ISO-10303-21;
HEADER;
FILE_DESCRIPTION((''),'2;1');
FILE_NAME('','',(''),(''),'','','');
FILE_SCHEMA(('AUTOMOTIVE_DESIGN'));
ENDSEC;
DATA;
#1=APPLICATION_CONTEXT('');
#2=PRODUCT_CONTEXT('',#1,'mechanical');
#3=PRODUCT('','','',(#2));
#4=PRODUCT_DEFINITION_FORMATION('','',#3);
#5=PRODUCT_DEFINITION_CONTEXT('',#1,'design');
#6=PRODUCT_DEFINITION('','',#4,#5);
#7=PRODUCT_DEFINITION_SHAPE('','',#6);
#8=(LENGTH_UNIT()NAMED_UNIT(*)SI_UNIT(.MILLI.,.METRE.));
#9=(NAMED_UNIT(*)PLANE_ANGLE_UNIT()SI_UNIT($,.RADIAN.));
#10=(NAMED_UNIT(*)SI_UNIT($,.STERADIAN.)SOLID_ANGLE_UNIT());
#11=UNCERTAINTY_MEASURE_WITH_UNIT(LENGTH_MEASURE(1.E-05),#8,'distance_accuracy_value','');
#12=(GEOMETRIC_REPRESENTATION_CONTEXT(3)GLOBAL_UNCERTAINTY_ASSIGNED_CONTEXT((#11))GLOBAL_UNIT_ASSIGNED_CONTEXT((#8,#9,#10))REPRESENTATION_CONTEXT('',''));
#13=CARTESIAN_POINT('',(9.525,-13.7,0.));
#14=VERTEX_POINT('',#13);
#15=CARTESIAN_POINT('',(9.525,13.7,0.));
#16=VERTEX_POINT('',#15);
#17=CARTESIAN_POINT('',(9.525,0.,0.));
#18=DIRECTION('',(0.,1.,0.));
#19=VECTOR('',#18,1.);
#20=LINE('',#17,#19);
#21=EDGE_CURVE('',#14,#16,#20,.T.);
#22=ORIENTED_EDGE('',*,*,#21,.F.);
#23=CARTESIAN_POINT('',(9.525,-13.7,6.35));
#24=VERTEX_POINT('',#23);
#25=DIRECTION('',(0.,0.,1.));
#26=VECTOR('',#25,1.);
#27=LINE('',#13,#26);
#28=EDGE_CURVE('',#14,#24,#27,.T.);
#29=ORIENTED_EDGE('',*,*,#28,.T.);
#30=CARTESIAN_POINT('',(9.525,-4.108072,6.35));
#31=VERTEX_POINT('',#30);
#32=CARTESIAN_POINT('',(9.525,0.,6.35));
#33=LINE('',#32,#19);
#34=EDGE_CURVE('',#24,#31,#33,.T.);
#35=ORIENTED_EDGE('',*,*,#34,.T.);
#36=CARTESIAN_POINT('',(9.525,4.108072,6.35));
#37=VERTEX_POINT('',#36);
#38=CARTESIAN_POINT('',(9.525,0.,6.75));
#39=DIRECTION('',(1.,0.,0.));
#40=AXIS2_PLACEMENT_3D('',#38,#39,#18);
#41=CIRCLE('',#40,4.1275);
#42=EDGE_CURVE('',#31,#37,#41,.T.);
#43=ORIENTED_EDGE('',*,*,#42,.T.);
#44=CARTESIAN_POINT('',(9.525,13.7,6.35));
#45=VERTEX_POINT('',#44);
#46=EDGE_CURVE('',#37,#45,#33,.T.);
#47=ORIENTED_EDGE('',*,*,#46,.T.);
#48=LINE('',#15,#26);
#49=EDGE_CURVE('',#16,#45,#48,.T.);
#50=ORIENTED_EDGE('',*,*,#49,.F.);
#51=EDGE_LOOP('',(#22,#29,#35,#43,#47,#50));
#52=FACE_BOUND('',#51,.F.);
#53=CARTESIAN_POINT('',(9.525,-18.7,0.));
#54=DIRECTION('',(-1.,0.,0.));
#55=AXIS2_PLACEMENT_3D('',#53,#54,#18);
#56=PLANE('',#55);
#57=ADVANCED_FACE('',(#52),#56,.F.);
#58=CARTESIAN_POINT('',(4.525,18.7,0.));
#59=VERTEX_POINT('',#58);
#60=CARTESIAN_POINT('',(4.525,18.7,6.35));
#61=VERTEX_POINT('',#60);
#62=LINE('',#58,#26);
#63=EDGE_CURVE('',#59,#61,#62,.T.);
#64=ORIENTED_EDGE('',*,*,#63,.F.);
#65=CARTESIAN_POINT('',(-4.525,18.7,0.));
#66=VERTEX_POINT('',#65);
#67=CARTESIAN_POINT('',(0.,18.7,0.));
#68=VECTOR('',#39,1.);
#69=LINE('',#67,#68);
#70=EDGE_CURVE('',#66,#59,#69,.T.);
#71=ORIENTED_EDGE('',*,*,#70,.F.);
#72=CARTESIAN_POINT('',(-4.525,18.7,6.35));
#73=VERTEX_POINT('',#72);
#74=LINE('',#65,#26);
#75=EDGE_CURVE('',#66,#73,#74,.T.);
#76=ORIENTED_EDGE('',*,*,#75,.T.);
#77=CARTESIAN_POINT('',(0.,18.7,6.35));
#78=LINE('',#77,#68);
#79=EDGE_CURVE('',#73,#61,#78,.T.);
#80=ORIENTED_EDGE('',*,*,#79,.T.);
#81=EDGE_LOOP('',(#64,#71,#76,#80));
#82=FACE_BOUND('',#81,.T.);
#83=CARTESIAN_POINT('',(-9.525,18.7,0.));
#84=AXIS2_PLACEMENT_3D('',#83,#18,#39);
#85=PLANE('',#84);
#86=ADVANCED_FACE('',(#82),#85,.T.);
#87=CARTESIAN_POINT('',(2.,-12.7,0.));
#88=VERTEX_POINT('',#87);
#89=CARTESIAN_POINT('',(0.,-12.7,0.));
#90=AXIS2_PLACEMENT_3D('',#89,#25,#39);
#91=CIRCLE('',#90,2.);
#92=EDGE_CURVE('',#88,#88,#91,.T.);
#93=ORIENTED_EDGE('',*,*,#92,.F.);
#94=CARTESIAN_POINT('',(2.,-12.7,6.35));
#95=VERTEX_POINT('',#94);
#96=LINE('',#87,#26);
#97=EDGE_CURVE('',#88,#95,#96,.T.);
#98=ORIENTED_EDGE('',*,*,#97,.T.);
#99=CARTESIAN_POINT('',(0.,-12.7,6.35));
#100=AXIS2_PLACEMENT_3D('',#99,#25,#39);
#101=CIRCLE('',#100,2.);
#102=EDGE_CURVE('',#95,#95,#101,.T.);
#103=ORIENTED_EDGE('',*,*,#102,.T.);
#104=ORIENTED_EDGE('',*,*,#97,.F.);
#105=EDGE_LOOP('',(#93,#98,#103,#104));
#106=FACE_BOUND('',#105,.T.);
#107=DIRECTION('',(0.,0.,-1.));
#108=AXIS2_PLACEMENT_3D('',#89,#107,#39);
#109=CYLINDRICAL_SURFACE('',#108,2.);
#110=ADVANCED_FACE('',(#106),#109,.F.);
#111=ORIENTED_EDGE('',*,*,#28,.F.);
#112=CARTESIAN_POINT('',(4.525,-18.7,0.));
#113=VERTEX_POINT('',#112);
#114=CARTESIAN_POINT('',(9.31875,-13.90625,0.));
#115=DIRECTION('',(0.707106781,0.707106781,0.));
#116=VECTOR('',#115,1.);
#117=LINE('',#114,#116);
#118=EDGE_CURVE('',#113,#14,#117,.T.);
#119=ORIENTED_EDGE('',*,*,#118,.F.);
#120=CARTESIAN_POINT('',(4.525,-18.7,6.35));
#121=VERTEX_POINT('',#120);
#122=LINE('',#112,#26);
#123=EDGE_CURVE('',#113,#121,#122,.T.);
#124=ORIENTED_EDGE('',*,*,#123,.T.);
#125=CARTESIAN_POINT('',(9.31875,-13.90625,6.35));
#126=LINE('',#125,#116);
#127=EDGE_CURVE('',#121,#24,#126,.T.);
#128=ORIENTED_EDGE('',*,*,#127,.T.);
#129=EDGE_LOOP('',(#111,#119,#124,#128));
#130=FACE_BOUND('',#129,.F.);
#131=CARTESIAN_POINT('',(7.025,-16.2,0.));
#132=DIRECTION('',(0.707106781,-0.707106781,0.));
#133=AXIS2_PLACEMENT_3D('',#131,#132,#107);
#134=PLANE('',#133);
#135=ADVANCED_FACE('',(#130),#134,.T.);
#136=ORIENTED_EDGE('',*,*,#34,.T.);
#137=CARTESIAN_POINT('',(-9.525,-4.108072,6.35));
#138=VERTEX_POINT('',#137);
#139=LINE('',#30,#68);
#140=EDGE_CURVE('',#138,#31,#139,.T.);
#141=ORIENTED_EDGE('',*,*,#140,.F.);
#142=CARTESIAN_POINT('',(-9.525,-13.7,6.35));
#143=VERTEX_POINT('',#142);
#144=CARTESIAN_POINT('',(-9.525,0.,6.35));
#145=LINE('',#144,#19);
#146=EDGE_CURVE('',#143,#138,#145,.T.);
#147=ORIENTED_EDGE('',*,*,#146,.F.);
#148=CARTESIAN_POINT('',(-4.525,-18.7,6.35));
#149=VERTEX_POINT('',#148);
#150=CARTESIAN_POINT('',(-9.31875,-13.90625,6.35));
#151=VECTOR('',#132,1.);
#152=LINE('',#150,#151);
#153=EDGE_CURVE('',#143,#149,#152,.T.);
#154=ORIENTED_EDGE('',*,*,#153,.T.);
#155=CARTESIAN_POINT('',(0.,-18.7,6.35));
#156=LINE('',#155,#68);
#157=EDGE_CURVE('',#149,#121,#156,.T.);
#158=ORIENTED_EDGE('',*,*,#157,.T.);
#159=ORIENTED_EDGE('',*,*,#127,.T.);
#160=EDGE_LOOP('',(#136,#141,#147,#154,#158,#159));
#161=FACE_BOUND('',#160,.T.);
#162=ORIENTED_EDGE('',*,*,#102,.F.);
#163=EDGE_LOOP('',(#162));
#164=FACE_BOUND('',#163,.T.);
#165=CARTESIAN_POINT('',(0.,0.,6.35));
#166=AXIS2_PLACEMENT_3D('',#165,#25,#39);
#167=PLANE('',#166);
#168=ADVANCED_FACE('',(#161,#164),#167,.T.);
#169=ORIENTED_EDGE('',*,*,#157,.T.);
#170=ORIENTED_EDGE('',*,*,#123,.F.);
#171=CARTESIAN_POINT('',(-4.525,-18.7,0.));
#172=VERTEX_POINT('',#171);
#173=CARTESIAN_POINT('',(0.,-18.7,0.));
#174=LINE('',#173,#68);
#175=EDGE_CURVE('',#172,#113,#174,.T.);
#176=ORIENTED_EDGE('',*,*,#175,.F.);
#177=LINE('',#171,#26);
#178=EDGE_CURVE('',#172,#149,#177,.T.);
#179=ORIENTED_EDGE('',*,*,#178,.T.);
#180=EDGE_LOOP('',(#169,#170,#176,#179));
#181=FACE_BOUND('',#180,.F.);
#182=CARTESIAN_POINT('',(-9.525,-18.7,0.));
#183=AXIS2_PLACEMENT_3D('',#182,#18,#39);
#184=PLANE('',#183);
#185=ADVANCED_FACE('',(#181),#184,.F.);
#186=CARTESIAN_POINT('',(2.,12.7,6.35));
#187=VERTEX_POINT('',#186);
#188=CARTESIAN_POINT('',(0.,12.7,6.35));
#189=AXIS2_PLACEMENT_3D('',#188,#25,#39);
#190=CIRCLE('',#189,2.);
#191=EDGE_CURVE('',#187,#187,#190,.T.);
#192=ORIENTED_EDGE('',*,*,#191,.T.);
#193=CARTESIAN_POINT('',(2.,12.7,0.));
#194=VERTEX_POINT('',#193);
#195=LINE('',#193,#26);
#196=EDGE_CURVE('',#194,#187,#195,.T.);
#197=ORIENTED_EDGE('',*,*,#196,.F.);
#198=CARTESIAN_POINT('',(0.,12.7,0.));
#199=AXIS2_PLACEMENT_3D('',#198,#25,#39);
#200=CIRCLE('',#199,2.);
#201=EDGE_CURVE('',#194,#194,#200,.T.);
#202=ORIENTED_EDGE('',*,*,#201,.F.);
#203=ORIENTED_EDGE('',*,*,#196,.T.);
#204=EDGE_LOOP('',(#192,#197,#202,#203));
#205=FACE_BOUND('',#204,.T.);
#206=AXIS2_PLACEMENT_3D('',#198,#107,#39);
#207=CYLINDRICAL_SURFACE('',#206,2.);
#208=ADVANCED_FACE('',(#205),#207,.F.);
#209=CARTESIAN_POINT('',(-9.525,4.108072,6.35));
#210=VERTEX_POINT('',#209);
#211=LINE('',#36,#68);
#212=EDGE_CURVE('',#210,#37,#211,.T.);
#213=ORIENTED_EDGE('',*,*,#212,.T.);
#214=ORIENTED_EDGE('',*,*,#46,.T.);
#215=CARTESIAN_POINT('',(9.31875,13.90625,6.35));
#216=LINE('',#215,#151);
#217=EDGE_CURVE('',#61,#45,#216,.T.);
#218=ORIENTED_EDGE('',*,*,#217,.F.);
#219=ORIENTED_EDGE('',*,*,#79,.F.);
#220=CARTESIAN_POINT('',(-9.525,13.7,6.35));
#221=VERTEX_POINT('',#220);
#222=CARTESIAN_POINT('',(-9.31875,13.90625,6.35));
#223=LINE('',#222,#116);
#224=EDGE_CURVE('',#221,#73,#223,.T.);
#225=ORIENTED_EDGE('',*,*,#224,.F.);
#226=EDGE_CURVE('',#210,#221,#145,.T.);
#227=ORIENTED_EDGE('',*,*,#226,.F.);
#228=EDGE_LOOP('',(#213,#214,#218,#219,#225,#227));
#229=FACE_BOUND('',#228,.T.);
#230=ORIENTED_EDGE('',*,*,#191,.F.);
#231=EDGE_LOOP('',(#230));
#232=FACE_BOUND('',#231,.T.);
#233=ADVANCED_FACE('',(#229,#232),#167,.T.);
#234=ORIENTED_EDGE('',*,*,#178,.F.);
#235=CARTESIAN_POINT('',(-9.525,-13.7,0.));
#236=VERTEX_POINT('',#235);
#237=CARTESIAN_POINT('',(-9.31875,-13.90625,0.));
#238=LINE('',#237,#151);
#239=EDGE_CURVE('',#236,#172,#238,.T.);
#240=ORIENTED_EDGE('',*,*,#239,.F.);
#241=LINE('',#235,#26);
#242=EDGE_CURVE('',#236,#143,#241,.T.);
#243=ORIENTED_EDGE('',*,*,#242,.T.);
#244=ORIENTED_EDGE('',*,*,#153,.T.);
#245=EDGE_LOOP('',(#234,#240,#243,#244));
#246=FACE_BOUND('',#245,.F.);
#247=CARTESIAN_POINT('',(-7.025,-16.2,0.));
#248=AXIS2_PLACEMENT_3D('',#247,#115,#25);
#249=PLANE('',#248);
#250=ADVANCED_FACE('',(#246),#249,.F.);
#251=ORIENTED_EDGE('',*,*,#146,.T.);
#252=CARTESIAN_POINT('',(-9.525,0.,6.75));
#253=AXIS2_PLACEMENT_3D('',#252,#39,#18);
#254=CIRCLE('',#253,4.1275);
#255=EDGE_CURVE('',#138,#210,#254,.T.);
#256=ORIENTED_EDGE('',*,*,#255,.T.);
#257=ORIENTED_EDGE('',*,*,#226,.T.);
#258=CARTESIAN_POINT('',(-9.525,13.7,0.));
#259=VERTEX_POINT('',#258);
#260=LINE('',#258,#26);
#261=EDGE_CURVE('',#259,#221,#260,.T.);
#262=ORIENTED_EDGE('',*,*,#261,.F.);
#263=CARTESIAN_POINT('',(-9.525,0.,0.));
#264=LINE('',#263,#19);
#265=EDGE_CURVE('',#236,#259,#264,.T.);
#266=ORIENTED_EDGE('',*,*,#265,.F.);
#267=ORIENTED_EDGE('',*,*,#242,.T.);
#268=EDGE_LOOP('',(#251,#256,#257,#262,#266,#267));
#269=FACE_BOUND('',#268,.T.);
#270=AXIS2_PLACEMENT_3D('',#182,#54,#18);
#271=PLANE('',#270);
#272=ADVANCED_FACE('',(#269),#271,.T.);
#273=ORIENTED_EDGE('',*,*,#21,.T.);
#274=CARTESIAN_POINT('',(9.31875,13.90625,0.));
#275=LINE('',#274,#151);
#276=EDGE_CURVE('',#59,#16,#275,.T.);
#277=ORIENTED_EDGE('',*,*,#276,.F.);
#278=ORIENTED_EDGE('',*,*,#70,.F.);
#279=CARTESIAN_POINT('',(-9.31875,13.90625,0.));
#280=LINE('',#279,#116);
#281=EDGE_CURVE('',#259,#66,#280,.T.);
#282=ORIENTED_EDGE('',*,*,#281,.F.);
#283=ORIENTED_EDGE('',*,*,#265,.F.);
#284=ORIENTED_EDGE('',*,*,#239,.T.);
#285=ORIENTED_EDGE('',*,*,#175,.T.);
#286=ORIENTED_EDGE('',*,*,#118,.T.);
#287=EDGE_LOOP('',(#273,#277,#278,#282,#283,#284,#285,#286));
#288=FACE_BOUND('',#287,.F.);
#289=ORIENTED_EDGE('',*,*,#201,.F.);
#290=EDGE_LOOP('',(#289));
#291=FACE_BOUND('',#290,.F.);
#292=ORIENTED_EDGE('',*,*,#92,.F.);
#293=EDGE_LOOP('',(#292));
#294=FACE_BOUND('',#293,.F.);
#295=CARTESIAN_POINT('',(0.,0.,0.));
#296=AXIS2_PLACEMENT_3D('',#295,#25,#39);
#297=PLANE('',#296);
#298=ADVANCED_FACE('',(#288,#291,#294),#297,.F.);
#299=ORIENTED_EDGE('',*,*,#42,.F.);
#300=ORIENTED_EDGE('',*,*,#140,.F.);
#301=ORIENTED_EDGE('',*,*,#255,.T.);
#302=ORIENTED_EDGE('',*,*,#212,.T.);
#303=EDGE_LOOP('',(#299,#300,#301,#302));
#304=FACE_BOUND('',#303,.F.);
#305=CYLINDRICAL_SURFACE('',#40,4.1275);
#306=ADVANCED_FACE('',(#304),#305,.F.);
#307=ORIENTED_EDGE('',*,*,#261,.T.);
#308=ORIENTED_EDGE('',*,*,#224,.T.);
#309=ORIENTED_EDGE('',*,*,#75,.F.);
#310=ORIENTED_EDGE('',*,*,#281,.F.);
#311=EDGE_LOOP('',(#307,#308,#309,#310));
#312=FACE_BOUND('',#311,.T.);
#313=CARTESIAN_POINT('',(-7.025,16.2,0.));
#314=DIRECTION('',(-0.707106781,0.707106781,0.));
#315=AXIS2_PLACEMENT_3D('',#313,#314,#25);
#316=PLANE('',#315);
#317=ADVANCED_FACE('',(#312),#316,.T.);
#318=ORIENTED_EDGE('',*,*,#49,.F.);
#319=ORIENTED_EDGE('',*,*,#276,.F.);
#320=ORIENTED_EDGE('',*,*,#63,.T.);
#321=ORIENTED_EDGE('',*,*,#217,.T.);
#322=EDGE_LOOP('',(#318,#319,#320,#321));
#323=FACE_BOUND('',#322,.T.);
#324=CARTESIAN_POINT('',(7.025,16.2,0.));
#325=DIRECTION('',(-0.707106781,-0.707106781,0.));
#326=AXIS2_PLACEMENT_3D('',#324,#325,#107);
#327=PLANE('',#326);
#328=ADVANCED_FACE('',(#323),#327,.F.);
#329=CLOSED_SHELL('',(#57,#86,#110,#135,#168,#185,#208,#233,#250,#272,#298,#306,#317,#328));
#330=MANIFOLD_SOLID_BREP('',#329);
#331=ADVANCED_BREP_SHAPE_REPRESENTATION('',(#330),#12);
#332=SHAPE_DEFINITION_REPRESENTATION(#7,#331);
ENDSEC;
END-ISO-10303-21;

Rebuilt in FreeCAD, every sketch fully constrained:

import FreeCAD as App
import Part
import Sketcher
Q = App.Units.Quantity


def edges_at(feature, points):
    """Names of the edges that pass closest to the given points."""
    edges = feature.Shape.Edges
    near = lambda p: min(range(len(edges)), key=lambda i: edges[i].distToShape(Part.Vertex(*p))[0])
    return sorted({f"Edge{near(p) + 1}" for p in points})


def add_polygon(sketch, points):
    """Adds a closed chain of lines whose ends are joined by coincident constraints."""
    first, n = sketch.GeometryCount, len(points)
    for a, b in zip(points, points[1:] + points[:1]):
        sketch.addGeometry(Part.LineSegment(App.Vector(*a, 0), App.Vector(*b, 0)), False)
    for i in range(n):
        sketch.addConstraint(Sketcher.Constraint("Coincident", first + i, 2, first + (i + 1) % n, 1))

doc = App.newDocument("Part")
params = doc.addObject("Spreadsheet::Sheet", "Params")
for row, (alias, value) in enumerate([
    ("sketch1_diameter", "4 mm"),
    ("sketch1_height", "37.4 mm"),
    ("sketch1_width", "19.05 mm"),
    ("pad1_length", "6.35 mm"),
    ("pocket1_length", "100 mm"),
    ("chamfer_size", "5 mm"),
], start=1):
    params.set(f"A{row}", alias)
    params.set(f"B{row}", "=" + value)
    params.setAlias(f"B{row}", alias)

body = doc.addObject("PartDesign::Body", "Body")

sketch1 = body.newObject("Sketcher::SketchObject", "Sketch")
sketch1.AttachmentSupport = (doc.getObject("XY_Plane"), [""])
sketch1.MapMode = "FlatFace"
add_polygon(sketch1, [(-9.5, 18.7), (-9.5, -18.7), (9.5, -18.7), (9.5, 18.7)])
sketch1.addGeometry(Part.Circle(App.Vector(0, -12.7, 0), App.Vector(0, 0, 1), 2), False)
sketch1.addGeometry(Part.Circle(App.Vector(0, 12.7, 0), App.Vector(0, 0, 1), 2), False)
sketch1.addConstraint([
    Sketcher.Constraint("Vertical", 0),
    Sketcher.Constraint("Horizontal", 1),
    Sketcher.Constraint("Vertical", 2),
    Sketcher.Constraint("Horizontal", 3),
    Sketcher.Constraint("Equal", 4, 5),
    Sketcher.Constraint("Symmetric", 4, 3, 5, 3, -1, 1),
    Sketcher.Constraint("Symmetric", 0, 2, 2, 2, -1, 1),
    Sketcher.Constraint("PointOnObject", 4, 3, -2),
    Sketcher.Constraint("Diameter", 4, Q("4 mm")),
    Sketcher.Constraint("DistanceY", 0, 2, 0, 1, Q("37.4 mm")),
    Sketcher.Constraint("DistanceY", 0, 2, 4, 3, Q("6 mm")),
    Sketcher.Constraint("DistanceX", 1, 1, 1, 2, Q("19.05 mm")),
])
sketch1.setExpression("Constraints[12]", "Params.sketch1_diameter")
sketch1.setExpression("Constraints[13]", "Params.sketch1_height")
sketch1.setExpression("Constraints[15]", "Params.sketch1_width")
pad1 = body.newObject("PartDesign::Pad", "Pad")
pad1.Profile = sketch1
pad1.setExpression("Length", "Params.pad1_length")

sketch2 = body.newObject("Sketcher::SketchObject", "Sketch001")
sketch2.AttachmentSupport = (doc.getObject("YZ_Plane"), [""])
sketch2.MapMode = "FlatFace"
sketch2.AttachmentOffset = App.Placement(App.Vector(0, 0, 9.525), App.Rotation())
sketch2.addGeometry(Part.Circle(App.Vector(0, 6.8, 0), App.Vector(0, 0, 1), 4.1), False)
sketch2.addConstraint([
    Sketcher.Constraint("PointOnObject", 0, 3, -2),
    Sketcher.Constraint("Diameter", 0, Q("8.255 mm")),
    Sketcher.Constraint("DistanceY", -1, 1, 0, 3, Q("6.75 mm")),
])
pocket1 = body.newObject("PartDesign::Pocket", "Pocket")
pocket1.Profile = sketch2
pocket1.setExpression("Length", "Params.pocket1_length")
doc.recompute()

chamfer = body.newObject("PartDesign::Chamfer", "Chamfer")
chamfer.Base = (pocket1, edges_at(pocket1, [
    (9.525, -18.7, 3.175),
    (-9.525, -18.7, 3.175),
    (-9.525, 18.7, 3.175),
    (9.525, 18.7, 3.175),
]))
chamfer.setExpression("Size", "Params.chamfer_size")

doc.recompute()
